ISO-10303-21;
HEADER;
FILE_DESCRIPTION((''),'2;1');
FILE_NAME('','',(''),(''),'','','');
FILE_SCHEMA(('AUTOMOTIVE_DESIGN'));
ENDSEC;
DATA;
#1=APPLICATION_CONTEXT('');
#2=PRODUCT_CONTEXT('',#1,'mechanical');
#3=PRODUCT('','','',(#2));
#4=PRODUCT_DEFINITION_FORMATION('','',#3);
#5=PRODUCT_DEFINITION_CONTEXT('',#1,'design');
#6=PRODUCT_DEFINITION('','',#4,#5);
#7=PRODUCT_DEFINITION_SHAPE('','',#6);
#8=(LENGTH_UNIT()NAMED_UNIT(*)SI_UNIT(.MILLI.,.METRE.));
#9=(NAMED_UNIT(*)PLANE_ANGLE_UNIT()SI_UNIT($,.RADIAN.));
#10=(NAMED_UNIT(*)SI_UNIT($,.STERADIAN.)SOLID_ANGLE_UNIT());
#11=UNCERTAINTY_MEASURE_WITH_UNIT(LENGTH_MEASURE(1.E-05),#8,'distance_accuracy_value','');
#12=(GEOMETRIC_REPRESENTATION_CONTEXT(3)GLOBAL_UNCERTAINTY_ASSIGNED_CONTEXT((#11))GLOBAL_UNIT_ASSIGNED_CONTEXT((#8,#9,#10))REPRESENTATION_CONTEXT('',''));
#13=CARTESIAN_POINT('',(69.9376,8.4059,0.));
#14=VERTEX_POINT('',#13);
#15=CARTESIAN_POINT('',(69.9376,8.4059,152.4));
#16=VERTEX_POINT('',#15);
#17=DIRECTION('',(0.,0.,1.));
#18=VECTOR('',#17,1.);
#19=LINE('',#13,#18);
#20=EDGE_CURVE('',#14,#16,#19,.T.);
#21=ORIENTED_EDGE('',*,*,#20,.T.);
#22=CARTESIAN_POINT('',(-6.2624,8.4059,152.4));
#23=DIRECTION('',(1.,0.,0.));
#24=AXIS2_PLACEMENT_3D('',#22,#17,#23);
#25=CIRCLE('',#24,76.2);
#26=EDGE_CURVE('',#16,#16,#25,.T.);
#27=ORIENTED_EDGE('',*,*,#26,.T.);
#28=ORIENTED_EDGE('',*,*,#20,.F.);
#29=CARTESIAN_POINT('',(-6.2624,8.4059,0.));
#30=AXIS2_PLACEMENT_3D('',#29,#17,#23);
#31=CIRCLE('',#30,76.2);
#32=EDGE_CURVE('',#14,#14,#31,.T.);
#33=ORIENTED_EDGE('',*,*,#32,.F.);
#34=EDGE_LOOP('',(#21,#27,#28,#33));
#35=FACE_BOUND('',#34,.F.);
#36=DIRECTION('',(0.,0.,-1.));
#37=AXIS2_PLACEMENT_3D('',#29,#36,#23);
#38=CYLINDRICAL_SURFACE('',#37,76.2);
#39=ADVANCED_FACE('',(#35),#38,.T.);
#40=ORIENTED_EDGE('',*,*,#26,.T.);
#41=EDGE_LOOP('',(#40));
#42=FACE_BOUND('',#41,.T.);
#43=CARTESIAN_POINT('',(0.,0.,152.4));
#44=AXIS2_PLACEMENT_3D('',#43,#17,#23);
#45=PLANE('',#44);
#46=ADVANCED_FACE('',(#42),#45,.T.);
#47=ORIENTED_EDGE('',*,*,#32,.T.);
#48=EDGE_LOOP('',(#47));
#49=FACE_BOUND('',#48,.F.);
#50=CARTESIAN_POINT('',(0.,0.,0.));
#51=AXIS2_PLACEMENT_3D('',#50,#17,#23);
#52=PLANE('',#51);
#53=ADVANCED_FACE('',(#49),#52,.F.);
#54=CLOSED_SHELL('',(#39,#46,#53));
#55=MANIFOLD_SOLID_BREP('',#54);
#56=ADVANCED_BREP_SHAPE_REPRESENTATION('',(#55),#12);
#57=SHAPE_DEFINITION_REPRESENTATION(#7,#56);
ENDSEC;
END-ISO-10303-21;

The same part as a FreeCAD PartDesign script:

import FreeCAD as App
import Part
import Sketcher
Q = App.Units.Quantity

doc = App.newDocument("Part")
params = doc.addObject("Spreadsheet::Sheet", "Params")
for row, (alias, value) in enumerate([
    ("sketch1_diameter", "6 in"),
    ("pad1_length", "6 in"),
], start=1):
    params.set(f"A{row}", alias)
    params.set(f"B{row}", "=" + value)
    params.setAlias(f"B{row}", alias)

body = doc.addObject("PartDesign::Body", "Body")

# Sketch on XY plane
sketch1 = doc.addObject("Sketcher::SketchObject", "Sketch")
body.addObject(sketch1)
sketch1.AttachmentSupport = (doc.XY_Plane, [""])
sketch1.MapMode = "FlatFace"
sketch1.addGeometry(Part.Circle(App.Vector(-6, 8, 0), App.Vector(0, 0, 1), 76), False)
sketch1.addConstraint([
    Sketcher.Constraint("Diameter", 0, Q("6 in")),
    Sketcher.Constraint("DistanceX", 0, 3, -1, 1, 6.2624),
    Sketcher.Constraint("DistanceY", -1, 1, 0, 3, 8.406),
])
sketch1.setExpression("Constraints[0]", "Params.sketch1_diameter")
pad1 = doc.addObject("PartDesign::Pad", "Pad")
body.addObject(pad1)
pad1.Profile = sketch1
pad1.setExpression("Length", "Params.pad1_length")

doc.recompute()
